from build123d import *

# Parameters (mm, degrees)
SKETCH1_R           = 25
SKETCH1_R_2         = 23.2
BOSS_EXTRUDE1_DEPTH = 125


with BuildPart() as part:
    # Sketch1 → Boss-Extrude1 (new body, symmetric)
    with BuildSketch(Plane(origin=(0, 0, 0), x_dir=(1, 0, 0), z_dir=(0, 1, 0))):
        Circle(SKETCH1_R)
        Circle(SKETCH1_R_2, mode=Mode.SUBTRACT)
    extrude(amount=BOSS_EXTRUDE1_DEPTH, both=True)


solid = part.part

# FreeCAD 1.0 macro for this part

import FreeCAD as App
import Part
import Sketcher

V = App.Vector
Q = App.Units.Quantity

doc = App.newDocument("Part")
body = doc.addObject("PartDesign::Body", "Body")

# Sketch on XZ plane
sketch1 = doc.addObject("Sketcher::SketchObject", "Sketch")
body.addObject(sketch1)
sketch1.AttachmentSupport = (doc.XZ_Plane, [""])
sketch1.MapMode = "FlatFace"
sketch1.addGeometry([
    Part.Circle(V(0, 0, 0), V(0, 0, 1), 25),
    Part.Circle(V(0, 0, 0), V(0, 0, 1), 23),
], False)
sketch1.addConstraint([
    Sketcher.Constraint("Coincident", 0, 3, -1, 1),
    Sketcher.Constraint("Coincident", 1, 3, -1, 1),
    Sketcher.Constraint("Diameter", 0, Q("50 mm")),
    Sketcher.Constraint("Diameter", 1, Q("46.4 mm")),
])
pad1 = doc.addObject("PartDesign::Pad", "Pad")
body.addObject(pad1)
pad1.Profile = sketch1
pad1.Length = 250
pad1.Midplane = True

doc.recompute()
